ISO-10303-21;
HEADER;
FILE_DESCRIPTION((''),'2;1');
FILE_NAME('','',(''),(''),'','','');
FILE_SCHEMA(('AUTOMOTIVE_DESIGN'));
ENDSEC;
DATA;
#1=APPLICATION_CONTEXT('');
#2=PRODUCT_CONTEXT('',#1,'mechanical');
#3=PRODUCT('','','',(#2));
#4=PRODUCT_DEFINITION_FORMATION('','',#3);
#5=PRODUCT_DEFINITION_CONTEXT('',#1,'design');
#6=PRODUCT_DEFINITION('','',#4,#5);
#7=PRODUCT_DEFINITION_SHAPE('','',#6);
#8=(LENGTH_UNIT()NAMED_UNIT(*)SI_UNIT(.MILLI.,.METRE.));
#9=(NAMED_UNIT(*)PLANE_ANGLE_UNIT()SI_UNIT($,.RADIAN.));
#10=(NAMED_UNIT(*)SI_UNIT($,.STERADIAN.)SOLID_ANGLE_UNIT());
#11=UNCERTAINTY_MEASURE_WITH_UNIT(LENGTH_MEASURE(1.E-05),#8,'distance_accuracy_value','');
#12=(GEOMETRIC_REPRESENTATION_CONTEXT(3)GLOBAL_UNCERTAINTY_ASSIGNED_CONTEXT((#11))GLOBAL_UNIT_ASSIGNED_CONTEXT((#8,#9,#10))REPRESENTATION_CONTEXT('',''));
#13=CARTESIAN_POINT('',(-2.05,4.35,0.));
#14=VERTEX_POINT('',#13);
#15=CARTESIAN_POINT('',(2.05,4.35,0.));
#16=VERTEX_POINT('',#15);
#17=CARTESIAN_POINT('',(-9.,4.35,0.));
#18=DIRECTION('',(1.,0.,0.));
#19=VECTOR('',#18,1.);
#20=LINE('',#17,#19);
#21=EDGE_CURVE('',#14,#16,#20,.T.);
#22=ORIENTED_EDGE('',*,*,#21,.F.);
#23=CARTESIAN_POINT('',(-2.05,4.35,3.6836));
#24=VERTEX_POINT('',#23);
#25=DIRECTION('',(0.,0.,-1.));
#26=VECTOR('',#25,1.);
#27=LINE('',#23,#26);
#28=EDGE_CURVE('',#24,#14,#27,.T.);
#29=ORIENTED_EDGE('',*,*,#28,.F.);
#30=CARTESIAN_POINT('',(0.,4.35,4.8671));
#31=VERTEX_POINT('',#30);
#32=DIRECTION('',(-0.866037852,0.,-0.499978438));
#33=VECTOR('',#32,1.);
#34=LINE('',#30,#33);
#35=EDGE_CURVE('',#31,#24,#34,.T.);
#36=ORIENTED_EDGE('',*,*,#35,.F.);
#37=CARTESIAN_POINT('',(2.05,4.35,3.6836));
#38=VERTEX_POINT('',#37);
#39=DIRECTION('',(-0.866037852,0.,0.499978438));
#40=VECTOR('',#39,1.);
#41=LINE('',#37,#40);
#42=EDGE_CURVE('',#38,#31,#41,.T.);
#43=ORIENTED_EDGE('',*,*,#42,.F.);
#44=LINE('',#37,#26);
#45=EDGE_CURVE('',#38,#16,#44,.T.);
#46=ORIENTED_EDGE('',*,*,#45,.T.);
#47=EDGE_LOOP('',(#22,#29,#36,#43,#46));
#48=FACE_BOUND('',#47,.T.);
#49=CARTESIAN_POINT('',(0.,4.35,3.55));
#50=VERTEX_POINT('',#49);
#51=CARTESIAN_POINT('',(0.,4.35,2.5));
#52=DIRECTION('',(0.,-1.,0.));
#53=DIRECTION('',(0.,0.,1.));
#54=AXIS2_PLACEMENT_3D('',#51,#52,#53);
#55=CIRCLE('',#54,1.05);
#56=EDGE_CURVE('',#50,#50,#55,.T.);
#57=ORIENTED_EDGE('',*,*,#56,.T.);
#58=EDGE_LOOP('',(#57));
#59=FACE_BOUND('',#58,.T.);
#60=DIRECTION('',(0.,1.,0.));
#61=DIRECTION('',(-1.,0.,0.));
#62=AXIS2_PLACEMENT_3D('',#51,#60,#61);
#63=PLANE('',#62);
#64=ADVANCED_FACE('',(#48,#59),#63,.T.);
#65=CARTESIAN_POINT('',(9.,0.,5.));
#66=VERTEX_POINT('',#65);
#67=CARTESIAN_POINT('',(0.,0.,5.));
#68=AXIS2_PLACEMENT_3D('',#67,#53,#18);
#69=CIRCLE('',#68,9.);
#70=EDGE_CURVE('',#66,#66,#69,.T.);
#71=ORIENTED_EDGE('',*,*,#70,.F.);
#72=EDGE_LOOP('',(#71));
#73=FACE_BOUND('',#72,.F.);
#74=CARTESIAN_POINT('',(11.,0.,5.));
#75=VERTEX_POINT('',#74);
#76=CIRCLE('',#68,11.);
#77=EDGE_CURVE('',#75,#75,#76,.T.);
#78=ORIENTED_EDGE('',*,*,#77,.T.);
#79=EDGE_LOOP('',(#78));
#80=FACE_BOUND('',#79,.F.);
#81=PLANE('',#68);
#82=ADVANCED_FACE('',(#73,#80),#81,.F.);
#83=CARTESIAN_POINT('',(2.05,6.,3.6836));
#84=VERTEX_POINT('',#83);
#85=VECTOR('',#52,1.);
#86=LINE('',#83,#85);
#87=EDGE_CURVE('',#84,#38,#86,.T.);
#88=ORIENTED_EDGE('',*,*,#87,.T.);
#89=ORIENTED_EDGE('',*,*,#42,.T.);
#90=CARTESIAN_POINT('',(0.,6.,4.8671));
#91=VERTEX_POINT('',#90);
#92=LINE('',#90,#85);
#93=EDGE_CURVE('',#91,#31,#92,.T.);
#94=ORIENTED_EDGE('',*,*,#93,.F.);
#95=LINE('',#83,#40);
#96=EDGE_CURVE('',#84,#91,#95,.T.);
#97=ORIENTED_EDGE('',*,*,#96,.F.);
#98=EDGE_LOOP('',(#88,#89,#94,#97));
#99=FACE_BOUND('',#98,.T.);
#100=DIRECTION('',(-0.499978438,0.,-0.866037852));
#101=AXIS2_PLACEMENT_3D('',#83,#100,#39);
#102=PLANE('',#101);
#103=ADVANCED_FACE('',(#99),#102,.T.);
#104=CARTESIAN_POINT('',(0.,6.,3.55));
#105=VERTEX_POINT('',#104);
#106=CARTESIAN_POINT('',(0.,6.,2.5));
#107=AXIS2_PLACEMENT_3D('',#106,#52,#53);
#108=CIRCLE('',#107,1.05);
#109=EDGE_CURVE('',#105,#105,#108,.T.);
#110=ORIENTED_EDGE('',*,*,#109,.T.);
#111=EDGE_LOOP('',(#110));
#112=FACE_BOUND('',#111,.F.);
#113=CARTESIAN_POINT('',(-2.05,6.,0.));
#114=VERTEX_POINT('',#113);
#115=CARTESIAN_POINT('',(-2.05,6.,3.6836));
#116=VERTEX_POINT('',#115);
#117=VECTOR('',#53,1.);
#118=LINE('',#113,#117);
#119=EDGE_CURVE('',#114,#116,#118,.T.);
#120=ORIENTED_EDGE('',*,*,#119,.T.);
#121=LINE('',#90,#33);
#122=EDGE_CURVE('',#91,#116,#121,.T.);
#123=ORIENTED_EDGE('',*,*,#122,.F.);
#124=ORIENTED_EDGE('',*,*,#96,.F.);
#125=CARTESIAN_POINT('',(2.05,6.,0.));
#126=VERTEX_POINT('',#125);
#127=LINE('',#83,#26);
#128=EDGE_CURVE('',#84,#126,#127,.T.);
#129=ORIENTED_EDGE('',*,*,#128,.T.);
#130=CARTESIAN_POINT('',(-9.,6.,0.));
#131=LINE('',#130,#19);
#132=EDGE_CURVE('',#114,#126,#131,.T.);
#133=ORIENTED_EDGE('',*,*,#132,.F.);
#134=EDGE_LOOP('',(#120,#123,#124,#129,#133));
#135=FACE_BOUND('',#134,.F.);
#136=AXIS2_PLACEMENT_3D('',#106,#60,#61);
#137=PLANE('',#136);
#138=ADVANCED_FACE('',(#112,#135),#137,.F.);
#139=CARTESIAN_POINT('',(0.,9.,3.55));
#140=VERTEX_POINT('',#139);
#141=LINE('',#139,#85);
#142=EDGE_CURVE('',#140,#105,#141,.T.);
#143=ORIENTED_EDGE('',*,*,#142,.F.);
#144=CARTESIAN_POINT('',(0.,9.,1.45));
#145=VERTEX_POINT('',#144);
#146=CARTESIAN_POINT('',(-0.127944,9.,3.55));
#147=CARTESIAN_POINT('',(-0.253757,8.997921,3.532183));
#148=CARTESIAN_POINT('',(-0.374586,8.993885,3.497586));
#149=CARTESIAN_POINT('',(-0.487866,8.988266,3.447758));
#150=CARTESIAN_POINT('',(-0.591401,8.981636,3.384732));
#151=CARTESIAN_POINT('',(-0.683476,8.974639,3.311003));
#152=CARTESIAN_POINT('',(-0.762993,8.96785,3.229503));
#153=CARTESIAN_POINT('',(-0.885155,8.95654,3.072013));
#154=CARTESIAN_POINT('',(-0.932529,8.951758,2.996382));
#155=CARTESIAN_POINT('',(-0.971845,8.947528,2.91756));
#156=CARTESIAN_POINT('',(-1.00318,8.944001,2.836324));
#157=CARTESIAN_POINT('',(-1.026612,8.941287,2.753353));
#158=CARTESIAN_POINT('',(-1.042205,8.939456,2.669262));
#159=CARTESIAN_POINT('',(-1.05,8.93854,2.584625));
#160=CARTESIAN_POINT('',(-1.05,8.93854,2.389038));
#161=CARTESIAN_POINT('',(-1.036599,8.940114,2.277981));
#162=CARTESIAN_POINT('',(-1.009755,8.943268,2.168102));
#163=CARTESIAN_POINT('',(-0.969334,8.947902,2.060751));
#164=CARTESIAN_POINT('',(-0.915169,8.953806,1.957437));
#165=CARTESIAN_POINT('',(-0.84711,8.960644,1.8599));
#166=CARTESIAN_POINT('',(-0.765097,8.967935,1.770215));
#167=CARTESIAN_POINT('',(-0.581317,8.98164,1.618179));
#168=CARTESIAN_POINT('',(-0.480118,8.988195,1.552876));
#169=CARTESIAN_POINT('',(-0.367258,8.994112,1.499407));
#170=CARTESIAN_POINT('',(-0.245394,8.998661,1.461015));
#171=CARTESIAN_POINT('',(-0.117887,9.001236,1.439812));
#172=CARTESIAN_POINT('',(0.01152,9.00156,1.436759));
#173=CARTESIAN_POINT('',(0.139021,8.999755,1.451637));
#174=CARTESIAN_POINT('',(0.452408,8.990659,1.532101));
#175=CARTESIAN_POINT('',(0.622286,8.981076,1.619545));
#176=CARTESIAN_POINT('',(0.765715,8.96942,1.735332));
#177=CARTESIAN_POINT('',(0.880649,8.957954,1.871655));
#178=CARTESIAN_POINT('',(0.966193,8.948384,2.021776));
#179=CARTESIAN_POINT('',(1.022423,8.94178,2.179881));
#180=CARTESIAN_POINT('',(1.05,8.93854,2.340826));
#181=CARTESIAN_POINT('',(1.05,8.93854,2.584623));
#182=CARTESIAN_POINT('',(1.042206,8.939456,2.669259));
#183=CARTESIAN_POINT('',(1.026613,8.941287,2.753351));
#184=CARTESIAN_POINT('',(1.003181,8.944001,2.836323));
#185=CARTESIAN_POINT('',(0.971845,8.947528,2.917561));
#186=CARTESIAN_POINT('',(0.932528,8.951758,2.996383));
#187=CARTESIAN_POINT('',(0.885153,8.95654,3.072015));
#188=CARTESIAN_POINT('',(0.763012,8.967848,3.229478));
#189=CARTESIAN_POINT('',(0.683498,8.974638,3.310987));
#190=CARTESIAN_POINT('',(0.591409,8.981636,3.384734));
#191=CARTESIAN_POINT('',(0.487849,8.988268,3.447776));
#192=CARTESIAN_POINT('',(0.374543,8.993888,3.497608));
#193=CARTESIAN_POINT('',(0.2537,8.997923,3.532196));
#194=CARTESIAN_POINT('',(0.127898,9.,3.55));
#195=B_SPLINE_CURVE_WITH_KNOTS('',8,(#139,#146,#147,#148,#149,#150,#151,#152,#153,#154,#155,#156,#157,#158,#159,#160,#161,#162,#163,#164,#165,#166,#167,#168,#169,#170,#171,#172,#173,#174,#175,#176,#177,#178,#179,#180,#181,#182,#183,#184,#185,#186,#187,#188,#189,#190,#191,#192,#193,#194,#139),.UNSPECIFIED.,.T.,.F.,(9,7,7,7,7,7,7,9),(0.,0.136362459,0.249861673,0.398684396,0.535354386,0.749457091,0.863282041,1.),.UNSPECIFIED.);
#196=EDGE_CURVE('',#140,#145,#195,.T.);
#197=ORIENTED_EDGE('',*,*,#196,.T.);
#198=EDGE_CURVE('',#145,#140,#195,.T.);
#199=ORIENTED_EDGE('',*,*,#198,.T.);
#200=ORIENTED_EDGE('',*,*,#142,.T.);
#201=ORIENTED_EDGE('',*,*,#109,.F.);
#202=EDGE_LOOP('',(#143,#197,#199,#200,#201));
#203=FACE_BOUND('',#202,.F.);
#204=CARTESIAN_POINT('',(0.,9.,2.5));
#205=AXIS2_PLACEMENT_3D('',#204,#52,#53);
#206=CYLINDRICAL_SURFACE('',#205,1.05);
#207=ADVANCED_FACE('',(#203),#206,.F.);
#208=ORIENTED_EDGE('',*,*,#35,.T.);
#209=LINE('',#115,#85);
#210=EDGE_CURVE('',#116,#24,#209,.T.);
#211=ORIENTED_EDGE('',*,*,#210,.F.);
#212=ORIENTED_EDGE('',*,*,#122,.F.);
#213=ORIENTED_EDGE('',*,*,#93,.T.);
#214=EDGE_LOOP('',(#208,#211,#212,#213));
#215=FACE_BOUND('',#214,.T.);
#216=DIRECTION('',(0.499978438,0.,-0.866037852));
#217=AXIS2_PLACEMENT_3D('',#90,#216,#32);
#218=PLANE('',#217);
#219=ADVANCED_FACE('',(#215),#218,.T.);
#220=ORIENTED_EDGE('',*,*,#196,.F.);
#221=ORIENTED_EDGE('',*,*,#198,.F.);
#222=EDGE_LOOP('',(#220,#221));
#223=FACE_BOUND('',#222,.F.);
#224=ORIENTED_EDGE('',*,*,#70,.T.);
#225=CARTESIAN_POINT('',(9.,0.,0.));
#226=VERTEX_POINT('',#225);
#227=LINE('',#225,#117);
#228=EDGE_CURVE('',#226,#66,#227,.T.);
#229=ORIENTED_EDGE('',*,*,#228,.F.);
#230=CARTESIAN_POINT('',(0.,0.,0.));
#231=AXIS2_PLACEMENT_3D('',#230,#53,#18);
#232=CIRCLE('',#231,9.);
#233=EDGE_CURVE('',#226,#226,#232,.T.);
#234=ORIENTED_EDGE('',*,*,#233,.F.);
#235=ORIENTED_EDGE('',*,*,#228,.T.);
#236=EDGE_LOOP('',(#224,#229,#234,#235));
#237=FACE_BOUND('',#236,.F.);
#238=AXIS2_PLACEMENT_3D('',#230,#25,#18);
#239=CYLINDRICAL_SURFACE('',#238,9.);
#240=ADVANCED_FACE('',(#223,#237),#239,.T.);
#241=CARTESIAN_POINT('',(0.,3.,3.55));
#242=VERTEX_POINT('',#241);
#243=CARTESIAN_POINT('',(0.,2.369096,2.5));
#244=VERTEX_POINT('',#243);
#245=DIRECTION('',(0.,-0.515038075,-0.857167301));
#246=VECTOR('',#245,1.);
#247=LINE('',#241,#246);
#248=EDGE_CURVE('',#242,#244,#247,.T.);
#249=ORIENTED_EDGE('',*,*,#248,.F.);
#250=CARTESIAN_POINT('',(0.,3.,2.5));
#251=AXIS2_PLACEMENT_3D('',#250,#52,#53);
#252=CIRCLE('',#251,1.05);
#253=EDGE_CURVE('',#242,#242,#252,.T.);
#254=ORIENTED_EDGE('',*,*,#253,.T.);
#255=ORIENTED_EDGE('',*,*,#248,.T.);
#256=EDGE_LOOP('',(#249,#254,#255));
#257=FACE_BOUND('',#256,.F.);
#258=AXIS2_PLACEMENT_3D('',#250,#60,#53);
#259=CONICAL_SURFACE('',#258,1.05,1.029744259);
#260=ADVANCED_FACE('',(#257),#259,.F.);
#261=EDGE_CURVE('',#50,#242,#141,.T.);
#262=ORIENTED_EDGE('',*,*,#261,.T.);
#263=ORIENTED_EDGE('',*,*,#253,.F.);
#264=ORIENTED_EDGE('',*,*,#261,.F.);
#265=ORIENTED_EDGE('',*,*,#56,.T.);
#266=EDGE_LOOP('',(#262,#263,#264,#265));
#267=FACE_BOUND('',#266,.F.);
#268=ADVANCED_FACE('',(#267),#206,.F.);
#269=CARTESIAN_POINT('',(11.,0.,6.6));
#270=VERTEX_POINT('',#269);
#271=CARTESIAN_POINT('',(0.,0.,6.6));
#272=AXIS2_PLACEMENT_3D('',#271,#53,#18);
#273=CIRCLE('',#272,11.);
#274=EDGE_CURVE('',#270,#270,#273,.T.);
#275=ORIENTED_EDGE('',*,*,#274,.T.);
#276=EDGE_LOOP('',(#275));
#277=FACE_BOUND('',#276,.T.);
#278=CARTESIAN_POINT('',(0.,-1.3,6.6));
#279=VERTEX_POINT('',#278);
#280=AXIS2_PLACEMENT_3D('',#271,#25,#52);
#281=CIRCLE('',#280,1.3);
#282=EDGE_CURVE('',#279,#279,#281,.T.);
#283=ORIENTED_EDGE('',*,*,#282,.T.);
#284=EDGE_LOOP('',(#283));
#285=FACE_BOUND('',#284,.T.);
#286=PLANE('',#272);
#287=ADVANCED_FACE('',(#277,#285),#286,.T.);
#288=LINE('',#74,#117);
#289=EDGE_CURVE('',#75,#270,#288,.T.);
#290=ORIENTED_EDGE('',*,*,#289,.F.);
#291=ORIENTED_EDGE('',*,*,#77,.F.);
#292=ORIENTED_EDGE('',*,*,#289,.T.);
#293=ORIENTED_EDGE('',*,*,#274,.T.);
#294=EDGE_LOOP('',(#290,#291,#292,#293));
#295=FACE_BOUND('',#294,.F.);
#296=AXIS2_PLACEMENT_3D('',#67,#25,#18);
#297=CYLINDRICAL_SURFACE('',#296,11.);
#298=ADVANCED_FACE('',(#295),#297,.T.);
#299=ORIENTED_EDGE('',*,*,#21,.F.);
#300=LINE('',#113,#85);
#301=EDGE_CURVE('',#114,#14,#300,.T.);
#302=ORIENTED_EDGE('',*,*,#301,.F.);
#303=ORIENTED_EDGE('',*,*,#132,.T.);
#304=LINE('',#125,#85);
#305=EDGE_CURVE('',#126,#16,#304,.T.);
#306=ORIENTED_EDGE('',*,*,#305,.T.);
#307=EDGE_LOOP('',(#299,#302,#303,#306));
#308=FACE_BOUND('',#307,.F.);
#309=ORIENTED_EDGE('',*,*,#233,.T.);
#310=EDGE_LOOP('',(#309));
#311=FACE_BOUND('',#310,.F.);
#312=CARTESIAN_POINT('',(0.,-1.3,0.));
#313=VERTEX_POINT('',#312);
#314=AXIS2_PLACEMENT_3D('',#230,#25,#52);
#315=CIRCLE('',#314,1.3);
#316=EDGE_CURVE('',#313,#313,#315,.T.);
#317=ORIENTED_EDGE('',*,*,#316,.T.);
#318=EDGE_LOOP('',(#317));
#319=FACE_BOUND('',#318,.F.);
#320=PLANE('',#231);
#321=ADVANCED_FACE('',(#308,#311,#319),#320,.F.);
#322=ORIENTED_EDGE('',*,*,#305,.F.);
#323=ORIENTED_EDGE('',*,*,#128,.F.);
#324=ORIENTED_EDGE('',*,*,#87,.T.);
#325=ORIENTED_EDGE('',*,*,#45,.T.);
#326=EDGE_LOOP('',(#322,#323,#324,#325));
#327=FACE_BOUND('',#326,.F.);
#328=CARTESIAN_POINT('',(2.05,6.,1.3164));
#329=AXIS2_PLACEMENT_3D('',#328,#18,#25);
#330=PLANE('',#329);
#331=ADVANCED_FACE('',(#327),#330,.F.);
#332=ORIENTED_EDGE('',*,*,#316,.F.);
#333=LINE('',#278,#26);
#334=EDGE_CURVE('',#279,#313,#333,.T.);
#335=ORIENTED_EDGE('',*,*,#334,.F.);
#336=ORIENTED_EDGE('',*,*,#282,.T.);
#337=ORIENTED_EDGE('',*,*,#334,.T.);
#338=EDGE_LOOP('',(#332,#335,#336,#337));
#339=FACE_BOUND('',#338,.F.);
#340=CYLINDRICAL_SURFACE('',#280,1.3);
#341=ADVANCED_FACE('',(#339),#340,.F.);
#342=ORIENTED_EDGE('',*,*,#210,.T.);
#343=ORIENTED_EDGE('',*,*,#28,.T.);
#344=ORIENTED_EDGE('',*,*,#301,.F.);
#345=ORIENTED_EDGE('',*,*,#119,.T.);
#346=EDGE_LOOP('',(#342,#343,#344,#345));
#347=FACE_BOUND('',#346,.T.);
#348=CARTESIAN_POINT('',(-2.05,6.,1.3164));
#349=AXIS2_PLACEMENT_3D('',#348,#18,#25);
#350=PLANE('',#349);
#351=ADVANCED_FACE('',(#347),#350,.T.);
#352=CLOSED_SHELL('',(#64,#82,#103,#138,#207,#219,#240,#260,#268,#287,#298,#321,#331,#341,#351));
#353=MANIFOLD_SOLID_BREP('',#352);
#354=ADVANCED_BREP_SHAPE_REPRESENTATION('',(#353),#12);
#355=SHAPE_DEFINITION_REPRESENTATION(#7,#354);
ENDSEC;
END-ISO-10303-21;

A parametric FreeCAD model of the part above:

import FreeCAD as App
import Part
import Sketcher

V = App.Vector

doc = App.newDocument("Part")
body = doc.addObject("PartDesign::Body", "Body")

# Sketch on XY plane
sketch1 = body.newObject("Sketcher::SketchObject", "Sketch")
sketch1.AttachmentSupport = (doc.getObject("XY_Plane"), [""])
sketch1.MapMode = "FlatFace"
sketch1.addGeometry(Part.Circle(V(0, 0, 0), V(0, 0, 1), 9), False)
sketch1.addConstraint([
    Sketcher.Constraint("Coincident", 0, 3, -1, 1),
    Sketcher.Constraint("Diameter", 0, 18.0),
])
pad1 = body.newObject("PartDesign::Pad", "Pad")
pad1.Profile = sketch1
pad1.Length = 5

# Sketch on XY plane
sketch2 = body.newObject("Sketcher::SketchObject", "Sketch001")
sketch2.AttachmentSupport = (doc.getObject("XY_Plane"), [""])
sketch2.MapMode = "FlatFace"
sketch2.AttachmentOffset = App.Placement(V(0, 0, 5), App.Rotation())
sketch2.addGeometry(Part.Circle(V(0, 0, 0), V(0, 0, 1), 11), False)
sketch2.addConstraint([
    Sketcher.Constraint("Coincident", 0, 3, -1, 1),
    Sketcher.Constraint("Diameter", 0, 22.0),
])
pad2 = body.newObject("PartDesign::Pad", "Pad001")
pad2.Profile = sketch2
pad2.Length = 1.6

# Sketch on XZ plane
sketch3 = body.newObject("Sketcher::SketchObject", "Sketch002")
sketch3.AttachmentSupport = (doc.getObject("XZ_Plane"), [""])
sketch3.MapMode = "FlatFace"
sketch3.AttachmentOffset = App.Placement(V(0, 0, -9), App.Rotation())
sketch3.addGeometry(Part.Circle(V(0, 2.5, 0), V(0, 0, 1), 1.1), False)
sketch3.addConstraint([
    Sketcher.Constraint("PointOnObject", 0, 3, -2),
    Sketcher.Constraint("Diameter", 0, 2.1),
    Sketcher.Constraint("DistanceY", -1, 1, 0, 3, 2.5),
])
doc.recompute()
hole = body.newObject("PartDesign::Hole", "Hole")
hole.Profile = sketch3
hole.ThreadType = "None"
hole.Diameter = 2.1
hole.DepthType = "Dimension"
hole.Depth = 6
hole.DrillPoint = "Angled"
hole.DrillPointAngle = 118
hole.Reversed = True

# Sketch on XZ plane
sketch4 = body.newObject("Sketcher::SketchObject", "Sketch003")
sketch4.AttachmentSupport = (doc.getObject("XZ_Plane"), [""])
sketch4.MapMode = "FlatFace"
sketch4.AttachmentOffset = App.Placement(V(0, 0, -6), App.Rotation())
sketch4.addGeometry([
    Part.LineSegment(V(-2, 0, 0), V(-2, 3.7, 0)),  # 0
    Part.LineSegment(V(-2, 3.7, 0), V(0, 4.9, 0)),  # 1
    Part.LineSegment(V(0, 4.9, 0), V(2, 3.7, 0)),  # 2
    Part.LineSegment(V(2, 3.7, 0), V(2, 0, 0)),  # 3
    Part.LineSegment(V(2, 0, 0), V(-2, 0, 0)),  # 4
    Part.Circle(V(0, 2.5, 0), V(0, 0, 1), 1.1),  # 5
], False)
sketch4.addConstraint([
    Sketcher.Constraint("Coincident", 0, 2, 1, 1),
    Sketcher.Constraint("Coincident", 1, 2, 2, 1),
    Sketcher.Constraint("Coincident", 2, 2, 3, 1),
    Sketcher.Constraint("Coincident", 3, 2, 4, 1),
    Sketcher.Constraint("Coincident", 4, 2, 0, 1),
    Sketcher.Constraint("Vertical", 0),
    Sketcher.Constraint("Vertical", 3),
    Sketcher.Constraint("Horizontal", 4),
    Sketcher.Constraint("Symmetric", 3, 2, 4, 2, -1, 1),
    Sketcher.Constraint("PointOnObject", 5, 3, -2),
    Sketcher.Constraint("PointOnObject", 1, 2, -2),
    Sketcher.Constraint("Horizontal", 0, 2, 2, 2),
    Sketcher.Constraint("DistanceX", 4, 2, 4, 1, 4.1),
    Sketcher.Constraint("Diameter", 5, 2.1),
    Sketcher.Constraint("DistanceY", -1, 1, 5, 3, 2.5),
    Sketcher.Constraint("Distance", 1, 2.367),
    Sketcher.Constraint("DistanceY", 0, 1, 0, 2, 3.6836),
])
pocket1 = body.newObject("PartDesign::Pocket", "Pocket")
pocket1.Profile = sketch4
pocket1.Length = 1.65
pocket1.Reversed = True

# Sketch on XY plane
sketch5 = body.newObject("Sketcher::SketchObject", "Sketch004")
sketch5.AttachmentSupport = (doc.getObject("XY_Plane"), [""])
sketch5.MapMode = "FlatFace"
sketch5.AttachmentOffset = App.Placement(V(0, 0, 6.6), App.Rotation())
sketch5.addGeometry(Part.Circle(V(0, 0, 0), V(0, 0, 1), 1.3), False)
sketch5.addConstraint([
    Sketcher.Constraint("Coincident", 0, 3, -1, 1),
    Sketcher.Constraint("Diameter", 0, 2.6),
])
doc.recompute()
hole2 = body.newObject("PartDesign::Hole", "Hole001")
hole2.Profile = sketch5
hole2.ThreadType = "None"
hole2.Diameter = 2.6
hole2.DepthType = "ThroughAll"

doc.recompute()
